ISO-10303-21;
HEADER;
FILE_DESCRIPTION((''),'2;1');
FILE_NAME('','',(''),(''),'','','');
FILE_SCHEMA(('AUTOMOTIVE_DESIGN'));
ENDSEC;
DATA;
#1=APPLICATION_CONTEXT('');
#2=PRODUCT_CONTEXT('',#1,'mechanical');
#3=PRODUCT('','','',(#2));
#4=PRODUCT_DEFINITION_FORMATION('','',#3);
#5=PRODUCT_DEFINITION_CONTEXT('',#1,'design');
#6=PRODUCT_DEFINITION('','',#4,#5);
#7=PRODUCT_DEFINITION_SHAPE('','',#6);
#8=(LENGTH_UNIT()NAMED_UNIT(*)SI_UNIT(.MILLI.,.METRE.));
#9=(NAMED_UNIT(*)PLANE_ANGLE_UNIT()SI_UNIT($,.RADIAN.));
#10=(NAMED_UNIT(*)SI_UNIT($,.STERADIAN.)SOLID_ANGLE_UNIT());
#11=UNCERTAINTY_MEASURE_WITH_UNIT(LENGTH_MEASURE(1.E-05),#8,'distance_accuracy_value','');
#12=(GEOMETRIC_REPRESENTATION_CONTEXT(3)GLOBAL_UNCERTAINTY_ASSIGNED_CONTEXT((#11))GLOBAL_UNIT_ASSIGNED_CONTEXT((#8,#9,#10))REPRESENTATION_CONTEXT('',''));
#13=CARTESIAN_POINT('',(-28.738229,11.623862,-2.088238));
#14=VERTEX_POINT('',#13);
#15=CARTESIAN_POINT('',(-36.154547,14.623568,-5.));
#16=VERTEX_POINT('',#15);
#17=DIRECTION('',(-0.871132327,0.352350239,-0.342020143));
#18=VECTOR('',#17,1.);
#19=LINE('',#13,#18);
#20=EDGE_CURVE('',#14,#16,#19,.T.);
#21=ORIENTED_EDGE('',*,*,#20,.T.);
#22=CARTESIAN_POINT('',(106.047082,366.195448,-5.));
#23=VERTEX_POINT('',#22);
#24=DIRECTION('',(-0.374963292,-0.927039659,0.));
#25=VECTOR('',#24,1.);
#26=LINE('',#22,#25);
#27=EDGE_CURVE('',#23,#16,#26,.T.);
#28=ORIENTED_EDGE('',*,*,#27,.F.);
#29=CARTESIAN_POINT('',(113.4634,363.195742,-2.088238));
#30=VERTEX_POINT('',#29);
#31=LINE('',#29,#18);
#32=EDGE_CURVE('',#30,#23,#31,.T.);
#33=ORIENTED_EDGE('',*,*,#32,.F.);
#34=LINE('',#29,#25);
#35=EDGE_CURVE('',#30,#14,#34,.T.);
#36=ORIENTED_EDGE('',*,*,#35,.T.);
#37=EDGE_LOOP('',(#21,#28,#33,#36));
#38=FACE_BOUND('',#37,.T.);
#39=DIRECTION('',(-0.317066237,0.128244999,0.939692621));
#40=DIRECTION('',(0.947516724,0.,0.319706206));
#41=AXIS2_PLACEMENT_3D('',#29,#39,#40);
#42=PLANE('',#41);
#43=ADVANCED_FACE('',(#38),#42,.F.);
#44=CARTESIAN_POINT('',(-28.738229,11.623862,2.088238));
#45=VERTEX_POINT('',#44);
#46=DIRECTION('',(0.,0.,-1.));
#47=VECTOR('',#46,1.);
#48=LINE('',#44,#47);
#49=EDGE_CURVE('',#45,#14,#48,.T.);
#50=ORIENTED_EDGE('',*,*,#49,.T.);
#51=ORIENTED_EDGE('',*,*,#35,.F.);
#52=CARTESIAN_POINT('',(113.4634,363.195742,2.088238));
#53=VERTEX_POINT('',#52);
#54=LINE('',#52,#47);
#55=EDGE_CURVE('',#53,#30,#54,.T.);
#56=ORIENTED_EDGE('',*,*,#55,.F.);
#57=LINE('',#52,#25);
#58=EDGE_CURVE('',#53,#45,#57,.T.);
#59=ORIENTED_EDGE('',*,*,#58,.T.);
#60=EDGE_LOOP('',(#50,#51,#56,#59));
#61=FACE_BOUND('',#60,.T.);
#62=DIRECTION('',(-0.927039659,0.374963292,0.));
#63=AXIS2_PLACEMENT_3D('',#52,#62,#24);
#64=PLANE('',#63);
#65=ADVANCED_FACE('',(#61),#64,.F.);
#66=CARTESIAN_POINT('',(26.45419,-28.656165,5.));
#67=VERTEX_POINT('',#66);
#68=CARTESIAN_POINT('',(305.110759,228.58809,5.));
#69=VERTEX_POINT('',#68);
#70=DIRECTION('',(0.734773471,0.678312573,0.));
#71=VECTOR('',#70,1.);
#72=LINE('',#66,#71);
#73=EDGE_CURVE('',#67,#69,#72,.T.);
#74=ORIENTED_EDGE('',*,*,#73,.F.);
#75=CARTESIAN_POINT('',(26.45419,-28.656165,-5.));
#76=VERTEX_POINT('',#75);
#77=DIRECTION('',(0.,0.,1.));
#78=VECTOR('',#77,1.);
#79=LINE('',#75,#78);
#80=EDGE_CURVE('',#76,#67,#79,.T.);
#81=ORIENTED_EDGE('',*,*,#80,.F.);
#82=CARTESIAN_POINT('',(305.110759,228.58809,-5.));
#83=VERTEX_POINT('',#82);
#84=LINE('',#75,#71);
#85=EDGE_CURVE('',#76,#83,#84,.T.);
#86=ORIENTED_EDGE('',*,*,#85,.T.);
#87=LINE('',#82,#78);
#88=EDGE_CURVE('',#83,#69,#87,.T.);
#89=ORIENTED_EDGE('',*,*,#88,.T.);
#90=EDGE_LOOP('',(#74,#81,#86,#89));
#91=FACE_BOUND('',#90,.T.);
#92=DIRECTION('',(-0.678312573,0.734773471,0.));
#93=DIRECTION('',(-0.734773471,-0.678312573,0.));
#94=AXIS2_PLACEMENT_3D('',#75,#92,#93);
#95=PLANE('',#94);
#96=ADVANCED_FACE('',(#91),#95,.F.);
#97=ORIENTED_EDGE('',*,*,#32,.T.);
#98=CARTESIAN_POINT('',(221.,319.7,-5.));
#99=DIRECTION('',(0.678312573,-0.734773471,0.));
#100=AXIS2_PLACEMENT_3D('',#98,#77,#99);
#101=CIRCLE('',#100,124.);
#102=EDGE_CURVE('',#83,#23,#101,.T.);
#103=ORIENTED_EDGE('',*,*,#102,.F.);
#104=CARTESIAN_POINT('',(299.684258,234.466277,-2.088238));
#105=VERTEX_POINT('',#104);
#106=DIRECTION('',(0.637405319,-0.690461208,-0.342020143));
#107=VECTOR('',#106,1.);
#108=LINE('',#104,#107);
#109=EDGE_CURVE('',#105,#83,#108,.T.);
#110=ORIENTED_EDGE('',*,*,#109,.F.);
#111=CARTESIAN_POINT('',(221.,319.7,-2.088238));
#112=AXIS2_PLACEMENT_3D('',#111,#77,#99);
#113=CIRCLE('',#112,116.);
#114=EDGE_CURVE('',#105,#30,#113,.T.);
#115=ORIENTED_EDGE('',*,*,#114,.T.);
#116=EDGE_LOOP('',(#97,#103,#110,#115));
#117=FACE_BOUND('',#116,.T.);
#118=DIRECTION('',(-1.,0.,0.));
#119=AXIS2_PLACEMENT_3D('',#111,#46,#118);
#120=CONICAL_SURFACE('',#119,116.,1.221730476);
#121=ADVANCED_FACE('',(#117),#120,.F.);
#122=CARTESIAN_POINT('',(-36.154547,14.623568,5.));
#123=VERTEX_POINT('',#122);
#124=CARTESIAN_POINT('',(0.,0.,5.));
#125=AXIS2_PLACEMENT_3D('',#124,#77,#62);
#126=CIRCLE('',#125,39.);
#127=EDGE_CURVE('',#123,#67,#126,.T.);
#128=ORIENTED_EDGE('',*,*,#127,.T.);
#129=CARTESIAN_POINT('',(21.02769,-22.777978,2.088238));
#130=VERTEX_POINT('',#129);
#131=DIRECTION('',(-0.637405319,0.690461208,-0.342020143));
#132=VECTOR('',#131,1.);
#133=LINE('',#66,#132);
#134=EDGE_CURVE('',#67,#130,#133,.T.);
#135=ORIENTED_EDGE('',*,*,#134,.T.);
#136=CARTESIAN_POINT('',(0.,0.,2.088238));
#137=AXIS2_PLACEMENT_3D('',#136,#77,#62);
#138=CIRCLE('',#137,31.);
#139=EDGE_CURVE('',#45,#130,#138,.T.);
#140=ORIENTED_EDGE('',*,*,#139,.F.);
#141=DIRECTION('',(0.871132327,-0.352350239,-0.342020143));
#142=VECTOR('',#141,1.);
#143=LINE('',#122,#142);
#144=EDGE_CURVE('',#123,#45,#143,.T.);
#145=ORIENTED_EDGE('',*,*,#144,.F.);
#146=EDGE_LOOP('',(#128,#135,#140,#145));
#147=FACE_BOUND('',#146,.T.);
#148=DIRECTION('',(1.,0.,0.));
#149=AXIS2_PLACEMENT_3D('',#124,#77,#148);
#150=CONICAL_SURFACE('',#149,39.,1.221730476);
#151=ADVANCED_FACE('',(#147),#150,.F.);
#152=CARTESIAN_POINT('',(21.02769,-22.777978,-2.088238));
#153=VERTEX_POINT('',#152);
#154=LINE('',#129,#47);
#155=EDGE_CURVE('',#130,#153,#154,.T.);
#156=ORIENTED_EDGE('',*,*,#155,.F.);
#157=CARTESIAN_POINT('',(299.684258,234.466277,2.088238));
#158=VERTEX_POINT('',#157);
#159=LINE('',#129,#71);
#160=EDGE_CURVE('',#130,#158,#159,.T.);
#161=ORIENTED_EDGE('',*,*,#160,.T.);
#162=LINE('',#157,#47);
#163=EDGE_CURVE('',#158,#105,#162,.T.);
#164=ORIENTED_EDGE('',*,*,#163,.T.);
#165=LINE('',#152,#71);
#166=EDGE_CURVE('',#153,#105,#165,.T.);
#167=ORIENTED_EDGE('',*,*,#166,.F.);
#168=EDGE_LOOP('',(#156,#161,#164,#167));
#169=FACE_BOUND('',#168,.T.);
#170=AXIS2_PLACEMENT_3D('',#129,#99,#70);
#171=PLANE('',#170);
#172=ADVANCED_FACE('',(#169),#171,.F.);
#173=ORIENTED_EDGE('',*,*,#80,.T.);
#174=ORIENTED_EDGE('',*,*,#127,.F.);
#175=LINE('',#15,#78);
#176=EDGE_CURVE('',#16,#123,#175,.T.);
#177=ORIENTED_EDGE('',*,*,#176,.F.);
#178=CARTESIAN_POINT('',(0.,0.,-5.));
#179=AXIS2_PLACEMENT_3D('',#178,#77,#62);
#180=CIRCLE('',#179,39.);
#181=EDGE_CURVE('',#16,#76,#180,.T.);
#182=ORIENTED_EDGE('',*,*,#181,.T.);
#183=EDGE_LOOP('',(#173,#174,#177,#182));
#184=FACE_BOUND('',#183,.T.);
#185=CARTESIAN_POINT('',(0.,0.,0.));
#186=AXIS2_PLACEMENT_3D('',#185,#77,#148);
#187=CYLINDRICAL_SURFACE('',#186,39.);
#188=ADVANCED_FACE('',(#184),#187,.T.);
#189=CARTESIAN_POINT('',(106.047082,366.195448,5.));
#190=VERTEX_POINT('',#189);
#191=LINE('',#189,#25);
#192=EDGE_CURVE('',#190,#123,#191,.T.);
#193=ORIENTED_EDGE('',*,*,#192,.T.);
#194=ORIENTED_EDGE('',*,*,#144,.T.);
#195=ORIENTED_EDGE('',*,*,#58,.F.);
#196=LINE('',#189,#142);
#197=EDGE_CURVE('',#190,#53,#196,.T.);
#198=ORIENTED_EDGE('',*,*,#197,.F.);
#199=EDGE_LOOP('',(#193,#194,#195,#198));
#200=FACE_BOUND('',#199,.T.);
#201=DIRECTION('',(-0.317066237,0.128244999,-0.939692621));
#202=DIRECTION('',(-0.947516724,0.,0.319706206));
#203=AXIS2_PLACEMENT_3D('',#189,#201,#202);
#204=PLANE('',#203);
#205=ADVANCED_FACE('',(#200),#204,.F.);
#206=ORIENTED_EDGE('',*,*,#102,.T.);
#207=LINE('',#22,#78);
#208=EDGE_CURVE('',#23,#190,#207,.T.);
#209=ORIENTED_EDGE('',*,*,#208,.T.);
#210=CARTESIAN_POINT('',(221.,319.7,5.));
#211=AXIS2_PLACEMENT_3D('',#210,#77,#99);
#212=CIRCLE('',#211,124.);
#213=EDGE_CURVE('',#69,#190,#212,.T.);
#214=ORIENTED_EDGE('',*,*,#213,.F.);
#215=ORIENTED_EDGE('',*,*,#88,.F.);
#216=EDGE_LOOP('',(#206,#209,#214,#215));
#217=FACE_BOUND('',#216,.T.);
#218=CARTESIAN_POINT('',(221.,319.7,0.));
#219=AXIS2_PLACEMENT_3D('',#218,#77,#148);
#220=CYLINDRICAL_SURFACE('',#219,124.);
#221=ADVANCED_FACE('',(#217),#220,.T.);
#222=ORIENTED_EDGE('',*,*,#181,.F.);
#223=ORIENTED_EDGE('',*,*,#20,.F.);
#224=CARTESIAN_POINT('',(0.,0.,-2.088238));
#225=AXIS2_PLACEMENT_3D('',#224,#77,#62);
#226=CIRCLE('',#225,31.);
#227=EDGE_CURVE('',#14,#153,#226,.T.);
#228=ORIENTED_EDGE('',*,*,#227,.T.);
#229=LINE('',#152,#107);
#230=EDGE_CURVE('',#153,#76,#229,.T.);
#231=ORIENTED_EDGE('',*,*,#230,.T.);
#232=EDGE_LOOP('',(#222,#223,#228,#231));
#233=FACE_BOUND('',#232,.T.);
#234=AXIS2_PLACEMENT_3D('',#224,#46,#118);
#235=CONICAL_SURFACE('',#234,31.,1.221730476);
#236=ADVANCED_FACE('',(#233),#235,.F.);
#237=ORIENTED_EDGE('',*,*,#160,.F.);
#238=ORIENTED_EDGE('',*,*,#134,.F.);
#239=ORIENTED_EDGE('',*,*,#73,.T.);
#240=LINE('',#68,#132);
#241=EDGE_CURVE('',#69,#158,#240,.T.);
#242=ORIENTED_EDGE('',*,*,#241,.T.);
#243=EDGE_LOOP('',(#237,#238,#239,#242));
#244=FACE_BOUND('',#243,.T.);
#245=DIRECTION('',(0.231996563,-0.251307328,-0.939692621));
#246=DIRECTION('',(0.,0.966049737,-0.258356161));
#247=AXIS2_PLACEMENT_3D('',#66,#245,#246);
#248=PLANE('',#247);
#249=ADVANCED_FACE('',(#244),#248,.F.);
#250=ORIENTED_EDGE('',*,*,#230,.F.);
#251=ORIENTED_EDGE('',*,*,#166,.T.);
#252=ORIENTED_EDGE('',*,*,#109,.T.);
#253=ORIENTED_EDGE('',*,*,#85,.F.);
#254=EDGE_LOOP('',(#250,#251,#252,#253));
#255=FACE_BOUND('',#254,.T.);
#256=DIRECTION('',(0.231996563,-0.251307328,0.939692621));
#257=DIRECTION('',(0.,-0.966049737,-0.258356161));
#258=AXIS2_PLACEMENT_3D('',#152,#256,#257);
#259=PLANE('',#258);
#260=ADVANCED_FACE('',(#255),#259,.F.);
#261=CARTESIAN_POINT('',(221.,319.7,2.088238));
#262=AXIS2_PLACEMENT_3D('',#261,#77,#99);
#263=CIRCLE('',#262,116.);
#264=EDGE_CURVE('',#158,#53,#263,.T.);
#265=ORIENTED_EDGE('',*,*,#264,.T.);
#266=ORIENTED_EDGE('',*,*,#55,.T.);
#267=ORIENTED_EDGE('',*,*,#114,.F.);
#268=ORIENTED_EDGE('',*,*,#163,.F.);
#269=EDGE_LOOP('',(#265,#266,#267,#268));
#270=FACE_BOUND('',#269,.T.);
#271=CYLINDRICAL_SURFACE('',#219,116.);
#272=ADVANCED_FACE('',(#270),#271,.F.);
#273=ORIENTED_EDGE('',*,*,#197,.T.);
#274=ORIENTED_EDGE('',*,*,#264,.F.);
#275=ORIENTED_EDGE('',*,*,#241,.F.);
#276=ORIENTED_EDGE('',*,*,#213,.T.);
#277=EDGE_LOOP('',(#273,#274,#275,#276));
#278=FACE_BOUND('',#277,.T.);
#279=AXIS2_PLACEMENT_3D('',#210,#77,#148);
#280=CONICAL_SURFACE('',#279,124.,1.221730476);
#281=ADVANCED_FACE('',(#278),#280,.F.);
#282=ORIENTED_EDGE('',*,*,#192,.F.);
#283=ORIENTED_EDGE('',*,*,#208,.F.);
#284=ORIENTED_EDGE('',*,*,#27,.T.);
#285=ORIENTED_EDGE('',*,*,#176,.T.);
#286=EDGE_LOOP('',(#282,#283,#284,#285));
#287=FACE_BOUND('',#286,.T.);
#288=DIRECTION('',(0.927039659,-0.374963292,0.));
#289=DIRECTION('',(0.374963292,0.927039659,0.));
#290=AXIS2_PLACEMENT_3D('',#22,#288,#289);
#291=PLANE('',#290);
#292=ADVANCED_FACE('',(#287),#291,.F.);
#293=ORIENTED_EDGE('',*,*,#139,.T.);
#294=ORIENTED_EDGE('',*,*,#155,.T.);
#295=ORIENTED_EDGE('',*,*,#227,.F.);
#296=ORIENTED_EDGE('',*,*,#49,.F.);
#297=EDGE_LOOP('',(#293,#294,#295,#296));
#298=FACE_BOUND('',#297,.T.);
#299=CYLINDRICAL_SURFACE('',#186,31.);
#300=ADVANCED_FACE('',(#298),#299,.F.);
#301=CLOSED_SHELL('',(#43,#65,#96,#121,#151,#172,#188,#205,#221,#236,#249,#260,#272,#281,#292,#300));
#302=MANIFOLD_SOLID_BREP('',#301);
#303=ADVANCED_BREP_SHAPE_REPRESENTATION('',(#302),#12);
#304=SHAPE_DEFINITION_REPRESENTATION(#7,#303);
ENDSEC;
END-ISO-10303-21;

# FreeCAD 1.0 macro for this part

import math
import FreeCAD as App
import Part
import Sketcher
from FreeCAD import Vector
Q = App.Units.Quantity

doc = App.newDocument("Part")
body = doc.addObject("PartDesign::Body", "Body")

sketch1 = body.newObject("Sketcher::SketchObject", "Sketch")
sketch1.Placement = App.Placement(Vector(-27.81119, 11.248899, 0), App.Rotation(Vector(0.927039659, -0.374963292, 0), Vector(0, 0, -1), Vector(0.374963292, 0.927039659, 0), "ZXY"))
sketch1.addGeometry(Part.LineSegment(Vector(-1, -2.1, 0), Vector(-1, 2.1, 0)), False)
sketch1.addGeometry(Part.LineSegment(Vector(-1, 2.1, 0), Vector(-9, 5, 0)), False)
sketch1.addGeometry(Part.LineSegment(Vector(-9, 5, 0), Vector(-9, -5, 0)), False)
sketch1.addGeometry(Part.LineSegment(Vector(-9, -5, 0), Vector(-1, -2.1, 0)), False)
sketch1.addConstraint(Sketcher.Constraint("Coincident", 0, 2, 1, 1))
sketch1.addConstraint(Sketcher.Constraint("Coincident", 1, 2, 2, 1))
sketch1.addConstraint(Sketcher.Constraint("Coincident", 2, 2, 3, 1))
sketch1.addConstraint(Sketcher.Constraint("Coincident", 3, 2, 0, 1))
sketch1.addConstraint(Sketcher.Constraint("Vertical", 0))
sketch1.addConstraint(Sketcher.Constraint("Vertical", 2))
sketch1.addConstraint(Sketcher.Constraint("Equal", 1, 3))
sketch1.addConstraint(Sketcher.Constraint("DistanceY", 2, 2, 2, 1, 10.0))
sketch1.addConstraint(Sketcher.Constraint("Angle", 1, Q("160 deg")))
sketch1.addConstraint(Sketcher.Constraint("DistanceX", 0, 2, -1, 1, 1.0))
sketch1.addConstraint(Sketcher.Constraint("DistanceX", 1, 2, -1, 1, 9.0))
sketch1.addConstraint(Sketcher.Constraint("DistanceY", -1, 1, 1, 2, 5.0))

sketch2 = body.newObject("Sketcher::SketchObject", "Sketch001")
sketch2.AttachmentSupport = (doc.getObject("XY_Plane"), [""])
sketch2.MapMode = "FlatFace"
sketch2.addGeometry(Part.LineSegment(Vector(-28, 11, 0), Vector(114, 363, 0)), False)
sketch2.addGeometry(Part.ArcOfCircle(Part.Circle(Vector(221, 320, 0), Vector(0, 0, 1), 115), math.radians(-47), math.radians(158)), False)
sketch2.addGeometry(Part.LineSegment(Vector(299, 235, 0), Vector(20, -22, 0)), False)
sketch2.addGeometry(Part.ArcOfCircle(Part.Circle(Vector(0, 0, 0), Vector(0, 0, 1), 30), math.radians(158), math.radians(313)), False)
sketch2.addConstraint(Sketcher.Constraint("Tangent", 0, 2, 1, 2))
sketch2.addConstraint(Sketcher.Constraint("Tangent", 1, 1, 2, 1))
sketch2.addConstraint(Sketcher.Constraint("Tangent", 2, 2, 3, 2))
sketch2.addConstraint(Sketcher.Constraint("Tangent", 3, 1, 0, 1))
sketch2.addConstraint(Sketcher.Constraint("Coincident", 3, 3, -1, 1))
sketch2.addConstraint(Sketcher.Constraint("Radius", 1, 115.0))
sketch2.addConstraint(Sketcher.Constraint("Radius", 3, 30.0))
sketch2.addConstraint(Sketcher.Constraint("DistanceX", -1, 1, 1, 3, 221.0))
sketch2.addConstraint(Sketcher.Constraint("DistanceY", -1, 1, 1, 3, 319.7))
doc.recompute()

additivepipe = body.newObject("PartDesign::AdditivePipe", "AdditivePipe")
additivepipe.Profile = sketch1
additivepipe.Spine = (sketch2, ["Edge1", "Edge2", "Edge3", "Edge4"])

doc.recompute()
